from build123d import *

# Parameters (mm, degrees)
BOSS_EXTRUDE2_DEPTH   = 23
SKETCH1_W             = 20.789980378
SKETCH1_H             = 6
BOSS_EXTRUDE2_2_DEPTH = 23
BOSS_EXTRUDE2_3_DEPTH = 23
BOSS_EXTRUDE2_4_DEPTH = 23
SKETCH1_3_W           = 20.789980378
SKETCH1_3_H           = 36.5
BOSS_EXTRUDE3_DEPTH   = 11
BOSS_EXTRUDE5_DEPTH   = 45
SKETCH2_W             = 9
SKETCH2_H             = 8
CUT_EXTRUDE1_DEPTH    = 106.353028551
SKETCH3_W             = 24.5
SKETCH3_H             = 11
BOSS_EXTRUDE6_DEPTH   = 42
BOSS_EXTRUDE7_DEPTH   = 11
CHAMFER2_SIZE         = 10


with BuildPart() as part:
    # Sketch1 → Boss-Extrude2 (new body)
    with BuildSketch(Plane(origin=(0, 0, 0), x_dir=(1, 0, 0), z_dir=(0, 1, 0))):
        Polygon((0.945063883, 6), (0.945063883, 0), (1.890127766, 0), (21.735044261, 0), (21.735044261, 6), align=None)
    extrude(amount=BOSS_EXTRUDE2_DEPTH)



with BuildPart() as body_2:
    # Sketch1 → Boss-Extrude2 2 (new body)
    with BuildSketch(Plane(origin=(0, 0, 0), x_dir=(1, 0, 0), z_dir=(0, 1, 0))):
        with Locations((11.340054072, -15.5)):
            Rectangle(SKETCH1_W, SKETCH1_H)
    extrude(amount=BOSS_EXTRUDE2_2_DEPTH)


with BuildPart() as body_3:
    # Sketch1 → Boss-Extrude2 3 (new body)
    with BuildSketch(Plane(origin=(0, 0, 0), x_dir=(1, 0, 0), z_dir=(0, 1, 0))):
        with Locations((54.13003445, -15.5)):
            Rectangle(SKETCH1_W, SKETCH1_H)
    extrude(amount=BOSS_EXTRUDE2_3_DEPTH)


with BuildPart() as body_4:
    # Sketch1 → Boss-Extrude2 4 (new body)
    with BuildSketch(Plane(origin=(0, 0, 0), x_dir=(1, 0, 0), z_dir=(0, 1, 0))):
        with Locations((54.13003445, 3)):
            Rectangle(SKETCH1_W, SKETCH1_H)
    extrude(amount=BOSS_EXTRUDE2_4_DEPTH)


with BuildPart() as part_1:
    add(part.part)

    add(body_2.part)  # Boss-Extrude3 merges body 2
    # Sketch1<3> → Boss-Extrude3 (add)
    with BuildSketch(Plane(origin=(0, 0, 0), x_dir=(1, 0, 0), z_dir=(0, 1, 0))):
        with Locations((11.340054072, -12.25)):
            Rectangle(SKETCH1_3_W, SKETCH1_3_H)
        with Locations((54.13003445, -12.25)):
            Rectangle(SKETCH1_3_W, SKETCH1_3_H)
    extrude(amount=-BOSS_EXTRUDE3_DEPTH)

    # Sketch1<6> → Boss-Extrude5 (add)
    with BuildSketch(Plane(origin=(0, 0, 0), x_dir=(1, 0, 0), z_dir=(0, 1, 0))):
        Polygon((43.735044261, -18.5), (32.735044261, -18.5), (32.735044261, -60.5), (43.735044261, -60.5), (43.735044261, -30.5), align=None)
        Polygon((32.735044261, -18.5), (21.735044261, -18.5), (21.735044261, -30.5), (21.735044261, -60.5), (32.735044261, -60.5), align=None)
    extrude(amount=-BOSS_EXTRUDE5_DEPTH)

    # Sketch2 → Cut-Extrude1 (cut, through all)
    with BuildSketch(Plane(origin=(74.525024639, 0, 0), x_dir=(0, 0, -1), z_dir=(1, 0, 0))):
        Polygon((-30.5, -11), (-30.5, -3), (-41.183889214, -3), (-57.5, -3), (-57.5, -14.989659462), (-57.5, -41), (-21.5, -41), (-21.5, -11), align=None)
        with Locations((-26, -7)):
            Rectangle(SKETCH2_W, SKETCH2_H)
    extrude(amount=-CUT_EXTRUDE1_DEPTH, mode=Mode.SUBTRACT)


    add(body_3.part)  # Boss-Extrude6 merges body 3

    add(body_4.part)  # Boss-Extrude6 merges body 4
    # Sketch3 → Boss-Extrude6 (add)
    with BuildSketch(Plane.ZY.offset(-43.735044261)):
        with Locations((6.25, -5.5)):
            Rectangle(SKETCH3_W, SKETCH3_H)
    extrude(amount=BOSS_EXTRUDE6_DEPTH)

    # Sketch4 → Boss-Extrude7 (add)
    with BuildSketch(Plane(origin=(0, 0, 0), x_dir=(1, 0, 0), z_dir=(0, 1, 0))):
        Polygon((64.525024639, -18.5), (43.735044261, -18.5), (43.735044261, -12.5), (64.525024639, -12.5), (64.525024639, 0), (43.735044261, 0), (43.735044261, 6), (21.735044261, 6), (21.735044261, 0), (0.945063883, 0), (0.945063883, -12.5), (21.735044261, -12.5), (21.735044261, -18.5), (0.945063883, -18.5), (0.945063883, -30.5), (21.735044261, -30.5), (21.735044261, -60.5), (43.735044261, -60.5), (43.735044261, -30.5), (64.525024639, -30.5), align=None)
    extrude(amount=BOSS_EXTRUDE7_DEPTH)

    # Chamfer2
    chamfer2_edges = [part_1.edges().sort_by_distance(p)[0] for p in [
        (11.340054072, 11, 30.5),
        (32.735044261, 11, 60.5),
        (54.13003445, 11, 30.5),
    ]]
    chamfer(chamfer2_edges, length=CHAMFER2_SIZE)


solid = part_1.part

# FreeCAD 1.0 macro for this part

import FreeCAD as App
import Part
import Sketcher


def edges_at(feature, points):
    """Names of the edges that pass closest to the given points."""
    edges = feature.Shape.Edges
    near = lambda p: min(range(len(edges)), key=lambda i: edges[i].distToShape(Part.Vertex(*p))[0])
    return sorted({f"Edge{near(p) + 1}" for p in points})


def add_polygon(sketch, points):
    """Adds a closed chain of lines whose ends are joined by coincident constraints."""
    first, n = sketch.GeometryCount, len(points)
    for a, b in zip(points, points[1:] + points[:1]):
        sketch.addGeometry(Part.LineSegment(App.Vector(*a, 0), App.Vector(*b, 0)), False)
    for i in range(n):
        sketch.addConstraint(Sketcher.Constraint("Coincident", first + i, 2, first + (i + 1) % n, 1))

doc = App.newDocument("Part")
body = doc.addObject("PartDesign::Body", "Body")

# Sketch on XZ plane
sketch1 = body.newObject("Sketcher::SketchObject", "Sketch")
sketch1.AttachmentSupport = (doc.getObject("XZ_Plane"), [""])
sketch1.MapMode = "FlatFace"
add_polygon(sketch1, [(1, -6), (1, 0), (22, 0), (22, -6)])  # lines 0-3
sketch1.addConstraint([
    Sketcher.Constraint("Vertical", 0),
    Sketcher.Constraint("Horizontal", 1),
    Sketcher.Constraint("Vertical", 2),
    Sketcher.Constraint("Horizontal", 3),
    Sketcher.Constraint("PointOnObject", 0, 2, -1),
    Sketcher.Constraint("DistanceY", 0, 1, 0, 2, 6.0),
    Sketcher.Constraint("DistanceX", 1, 1, 1, 2, 20.78998),
    Sketcher.Constraint("DistanceX", -1, 1, 0, 2, 0.945064),
])
pad1 = body.newObject("PartDesign::Pad", "Pad")
pad1.Profile = sketch1
pad1.Length = 23
pad1.Reversed = True
body2 = doc.addObject("PartDesign::Body", "Body001")

# Sketch on XZ plane
sketch2 = body2.newObject("Sketcher::SketchObject", "Sketch001")
sketch2.AttachmentSupport = (doc.getObject("XZ_Plane001"), [""])
sketch2.MapMode = "FlatFace"
add_polygon(sketch2, [(1, 12), (1, 18), (22, 18), (22, 12)])  # lines 0-3
sketch2.addConstraint([
    Sketcher.Constraint("Vertical", 0),
    Sketcher.Constraint("Horizontal", 1),
    Sketcher.Constraint("Vertical", 2),
    Sketcher.Constraint("Horizontal", 3),
    Sketcher.Constraint("DistanceY", 0, 1, 0, 2, 6.0),
    Sketcher.Constraint("DistanceY", -1, 1, 0, 2, 18.5),
    Sketcher.Constraint("DistanceX", 1, 1, 1, 2, 20.78998),
    Sketcher.Constraint("DistanceX", -1, 1, 0, 2, 0.945064),
])
pad2 = body2.newObject("PartDesign::Pad", "Pad001")
pad2.Profile = sketch2
pad2.Length = 23
pad2.Reversed = True
body3 = doc.addObject("PartDesign::Body", "Body002")

# Sketch on XZ plane
sketch3 = body3.newObject("Sketcher::SketchObject", "Sketch002")
sketch3.AttachmentSupport = (doc.getObject("XZ_Plane002"), [""])
sketch3.MapMode = "FlatFace"
add_polygon(sketch3, [(44, 12), (44, 18), (65, 18), (65, 12)])  # lines 0-3
sketch3.addConstraint([
    Sketcher.Constraint("Vertical", 0),
    Sketcher.Constraint("Horizontal", 1),
    Sketcher.Constraint("Vertical", 2),
    Sketcher.Constraint("Horizontal", 3),
    Sketcher.Constraint("DistanceY", 0, 1, 0, 2, 6.0),
    Sketcher.Constraint("DistanceY", -1, 1, 0, 2, 18.5),
    Sketcher.Constraint("DistanceX", 1, 1, 1, 2, 20.78998),
    Sketcher.Constraint("DistanceX", -1, 1, 0, 2, 43.735044),
])
pad3 = body3.newObject("PartDesign::Pad", "Pad002")
pad3.Profile = sketch3
pad3.Length = 23
pad3.Reversed = True
body4 = doc.addObject("PartDesign::Body", "Body003")

# Sketch on XZ plane
sketch4 = body4.newObject("Sketcher::SketchObject", "Sketch003")
sketch4.AttachmentSupport = (doc.getObject("XZ_Plane003"), [""])
sketch4.MapMode = "FlatFace"
add_polygon(sketch4, [(44, -6), (44, 0), (65, 0), (65, -6)])  # lines 0-3
sketch4.addConstraint([
    Sketcher.Constraint("Vertical", 0),
    Sketcher.Constraint("Horizontal", 1),
    Sketcher.Constraint("Vertical", 2),
    Sketcher.Constraint("Horizontal", 3),
    Sketcher.Constraint("PointOnObject", 0, 2, -1),
    Sketcher.Constraint("DistanceY", 0, 1, 0, 2, 6.0),
    Sketcher.Constraint("DistanceX", 1, 1, 1, 2, 20.78998),
    Sketcher.Constraint("DistanceX", -1, 1, 0, 2, 43.735044),
])
pad4 = body4.newObject("PartDesign::Pad", "Pad003")
pad4.Profile = sketch4
pad4.Length = 23
pad4.Reversed = True
body.AllowCompound = True
doc.recompute()

boolean = body.newObject("PartDesign::Boolean", "Boolean")
boolean.Type = "Fuse"
boolean.addObjects([body2])

# Sketch on XZ plane
sketch5 = body.newObject("Sketcher::SketchObject", "Sketch004")
sketch5.AttachmentSupport = (doc.getObject("XZ_Plane"), [""])
sketch5.MapMode = "FlatFace"
add_polygon(sketch5, [(1, -6), (1, 30), (22, 30), (22, -6)])  # lines 0-3
add_polygon(sketch5, [(44, -6), (44, 30), (65, 30), (65, -6)])  # lines 4-7
sketch5.addConstraint([
    Sketcher.Constraint("Vertical", 0),
    Sketcher.Constraint("Horizontal", 1),
    Sketcher.Constraint("Vertical", 2),
    Sketcher.Constraint("Horizontal", 3),
    Sketcher.Constraint("Vertical", 4),
    Sketcher.Constraint("Horizontal", 5),
    Sketcher.Constraint("Vertical", 6),
    Sketcher.Constraint("Horizontal", 7),
    Sketcher.Constraint("Horizontal", 1, 2, 4, 2),
    Sketcher.Constraint("Horizontal", 3, 2, 6, 2),
    Sketcher.Constraint("Equal", 3, 5),
    Sketcher.Constraint("DistanceY", 0, 1, 0, 2, 36.5),
    Sketcher.Constraint("DistanceY", 2, 2, -1, 1, 6.0),
    Sketcher.Constraint("DistanceX", 1, 2, 4, 2, 22.0),
    Sketcher.Constraint("DistanceX", 1, 1, 1, 2, 20.78998),
    Sketcher.Constraint("DistanceX", -1, 1, 0, 2, 0.945064),
])
pad5 = body.newObject("PartDesign::Pad", "Pad004")
pad5.Profile = sketch5
pad5.Length = 11

# Sketch on XZ plane
sketch6 = body.newObject("Sketcher::SketchObject", "Sketch005")
sketch6.AttachmentSupport = (doc.getObject("XZ_Plane"), [""])
sketch6.MapMode = "FlatFace"
add_polygon(sketch6, [(44, 18), (22, 18), (22, 60), (44, 60)])  # lines 0-3
sketch6.addConstraint([
    Sketcher.Constraint("Horizontal", 0),
    Sketcher.Constraint("Vertical", 1),
    Sketcher.Constraint("Horizontal", 2),
    Sketcher.Constraint("Vertical", 3),
    Sketcher.Constraint("DistanceX", 0, 2, 0, 1, 22.0),
    Sketcher.Constraint("DistanceY", 1, 1, 1, 2, 42.0),
    Sketcher.Constraint("DistanceY", -1, 1, 0, 2, 18.5),
    Sketcher.Constraint("DistanceX", -1, 1, 0, 2, 21.735044),
])
pad6 = body.newObject("PartDesign::Pad", "Pad005")
pad6.Profile = sketch6
pad6.Length = 45

# Sketch on YZ plane
sketch7 = body.newObject("Sketcher::SketchObject", "Sketch006")
sketch7.AttachmentSupport = (doc.getObject("YZ_Plane"), [""])
sketch7.MapMode = "FlatFace"
sketch7.AttachmentOffset = App.Placement(App.Vector(0, 0, 74.525025), App.Rotation())
add_polygon(sketch7, [(-3, 58), (-41, 58), (-41, 22), (-3, 22)])  # lines 0-3
sketch7.addConstraint([
    Sketcher.Constraint("Horizontal", 0),
    Sketcher.Constraint("Vertical", 1),
    Sketcher.Constraint("Horizontal", 2),
    Sketcher.Constraint("Vertical", 3),
    Sketcher.Constraint("DistanceX", 0, 2, 0, 1, 38.0),
    Sketcher.Constraint("DistanceY", 1, 2, 1, 1, 36.0),
    Sketcher.Constraint("DistanceX", 0, 2, -1, 1, 41.0),
    Sketcher.Constraint("DistanceY", -1, 1, 0, 2, 57.5),
])
pocket1 = body.newObject("PartDesign::Pocket", "Pocket")
pocket1.Profile = sketch7
pocket1.Type = "ThroughAll"
doc.recompute()

boolean2 = body.newObject("PartDesign::Boolean", "Boolean001")
boolean2.Type = "Fuse"
boolean2.addObjects([body3])
doc.recompute()

boolean3 = body.newObject("PartDesign::Boolean", "Boolean002")
boolean3.Type = "Fuse"
boolean3.addObjects([body4])

# Sketch on YZ plane
sketch8 = body.newObject("Sketcher::SketchObject", "Sketch007")
sketch8.AttachmentSupport = (doc.getObject("YZ_Plane"), [""])
sketch8.MapMode = "FlatFace"
sketch8.AttachmentOffset = App.Placement(App.Vector(0, 0, 43.735044), App.Rotation())
add_polygon(sketch8, [(0, -6), (-11, -6), (-11, 18), (0, 18)])  # lines 0-3
sketch8.addConstraint([
    Sketcher.Constraint("Horizontal", 0),
    Sketcher.Constraint("Vertical", 1),
    Sketcher.Constraint("Horizontal", 2),
    Sketcher.Constraint("Vertical", 3),
    Sketcher.Constraint("PointOnObject", 2, 2, -2),
    Sketcher.Constraint("DistanceX", 0, 2, 0, 1, 11.0),
    Sketcher.Constraint("DistanceY", 1, 1, 1, 2, 24.5),
    Sketcher.Constraint("DistanceY", 0, 2, -1, 1, 6.0),
])
pad7 = body.newObject("PartDesign::Pad", "Pad006")
pad7.Profile = sketch8
pad7.Length = 42
pad7.Reversed = True

# Sketch on XZ plane
sketch9 = body.newObject("Sketcher::SketchObject", "Sketch008")
sketch9.AttachmentSupport = (doc.getObject("XZ_Plane"), [""])
sketch9.MapMode = "FlatFace"
add_polygon(sketch9, [(65, 18), (44, 18), (44, 12), (65, 12), (65, 0), (44, 0), (44, -6), (22, -6), (22, 0), (1, 0), (1, 12), (22, 12), (22, 18), (1, 18), (1, 30), (22, 30), (22, 60), (44, 60), (44, 30), (65, 30)])  # lines 0-19
sketch9.addConstraint([
    Sketcher.Constraint("Horizontal", 0),
    Sketcher.Constraint("Vertical", 1),
    Sketcher.Constraint("Horizontal", 2),
    Sketcher.Constraint("Vertical", 3),
    Sketcher.Constraint("Horizontal", 4),
    Sketcher.Constraint("Vertical", 5),
    Sketcher.Constraint("Horizontal", 6),
    Sketcher.Constraint("Vertical", 7),
    Sketcher.Constraint("Horizontal", 8),
    Sketcher.Constraint("Vertical", 9),
    Sketcher.Constraint("Horizontal", 10),
    Sketcher.Constraint("Vertical", 11),
    Sketcher.Constraint("Horizontal", 12),
    Sketcher.Constraint("Vertical", 13),
    Sketcher.Constraint("Horizontal", 14),
    Sketcher.Constraint("Vertical", 15),
    Sketcher.Constraint("Horizontal", 16),
    Sketcher.Constraint("Vertical", 17),
    Sketcher.Constraint("Horizontal", 18),
    Sketcher.Constraint("Vertical", 19),
    Sketcher.Constraint("PointOnObject", 3, 2, -1),
    Sketcher.Constraint("PointOnObject", 7, 2, -1),
    Sketcher.Constraint("Horizontal", 2, 2, 9, 2),
    Sketcher.Constraint("Horizontal", 0, 2, 11, 2),
    Sketcher.Constraint("Horizontal", 14, 2, 17, 2),
    Sketcher.Constraint("Vertical", 1, 2, 4, 2),
    Sketcher.Constraint("Vertical", 7, 2, 10, 2),
    Sketcher.Constraint("Vertical", 9, 2, 12, 2),
    Sketcher.Constraint("Vertical", 11, 2, 14, 2),
    Sketcher.Constraint("Vertical", 5, 2, 16, 2),
    Sketcher.Constraint("Vertical", 3, 2, 18, 2),
    Sketcher.Constraint("Equal", 4, 8),
    Sketcher.Constraint("Equal", 1, 5),
    Sketcher.Constraint("DistanceX", 6, 2, 6, 1, 22.0),
    Sketcher.Constraint("DistanceY", 1, 2, 1, 1, 6.0),
    Sketcher.Constraint("DistanceY", 13, 1, 13, 2, 12.0),
    Sketcher.Constraint("DistanceY", 15, 1, 15, 2, 30.0),
    Sketcher.Constraint("DistanceY", 3, 2, 3, 1, 12.5),
    Sketcher.Constraint("DistanceX", 0, 2, 0, 1, 20.78998),
    Sketcher.Constraint("DistanceX", -1, 1, 0, 2, 43.735044),
])
pad8 = body.newObject("PartDesign::Pad", "Pad007")
pad8.Profile = sketch9
pad8.Length = 11
pad8.Reversed = True
doc.recompute()

chamfer = body.newObject("PartDesign::Chamfer", "Chamfer")
chamfer.Base = (pad8, edges_at(pad8, [(11.34, 11, 30.5), (32.735, 11, 60.5), (54.13, 11, 30.5)]))
chamfer.Size = 10

doc.recompute()
